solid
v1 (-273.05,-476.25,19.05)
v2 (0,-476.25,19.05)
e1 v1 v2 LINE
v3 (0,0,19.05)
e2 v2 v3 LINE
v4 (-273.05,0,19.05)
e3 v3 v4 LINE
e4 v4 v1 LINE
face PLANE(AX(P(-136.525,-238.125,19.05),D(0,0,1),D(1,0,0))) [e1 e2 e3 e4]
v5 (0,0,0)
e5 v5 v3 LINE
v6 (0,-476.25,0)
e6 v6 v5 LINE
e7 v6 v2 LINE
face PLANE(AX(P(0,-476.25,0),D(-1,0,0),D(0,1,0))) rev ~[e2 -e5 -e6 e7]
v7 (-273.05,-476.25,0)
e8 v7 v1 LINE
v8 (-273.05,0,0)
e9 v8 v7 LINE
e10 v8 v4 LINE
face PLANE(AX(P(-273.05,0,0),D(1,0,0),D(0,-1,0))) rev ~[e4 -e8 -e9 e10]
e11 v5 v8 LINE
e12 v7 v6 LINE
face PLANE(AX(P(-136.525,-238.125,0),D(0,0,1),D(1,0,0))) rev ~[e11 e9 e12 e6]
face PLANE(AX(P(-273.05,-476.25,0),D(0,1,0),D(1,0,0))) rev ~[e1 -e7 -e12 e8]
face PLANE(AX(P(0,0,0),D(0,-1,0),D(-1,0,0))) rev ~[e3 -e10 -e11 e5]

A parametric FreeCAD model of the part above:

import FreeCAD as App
import Part
import Sketcher
Q = App.Units.Quantity


def add_polygon(sketch, points):
    """Adds a closed chain of lines whose ends are joined by coincident constraints."""
    first, n = sketch.GeometryCount, len(points)
    for a, b in zip(points, points[1:] + points[:1]):
        sketch.addGeometry(Part.LineSegment(App.Vector(*a, 0), App.Vector(*b, 0)), False)
    for i in range(n):
        sketch.addConstraint(Sketcher.Constraint("Coincident", first + i, 2, first + (i + 1) % n, 1))

doc = App.newDocument("Part")
body = doc.addObject("PartDesign::Body", "Body")

sketch1 = body.newObject("Sketcher::SketchObject", "Sketch")
sketch1.AttachmentSupport = (doc.getObject("XY_Plane"), [""])
sketch1.MapMode = "FlatFace"
add_polygon(sketch1, [(-273.05, -476.25), (0, -476.25), (0, 0), (-273.05, 0)])
sketch1.addConstraint([
    Sketcher.Constraint("Horizontal", 0),
    Sketcher.Constraint("Vertical", 1),
    Sketcher.Constraint("Horizontal", 2),
    Sketcher.Constraint("Vertical", 3),
    Sketcher.Constraint("Coincident", 1, 2, -1, 1),
    Sketcher.Constraint("DistanceX", 0, 1, 0, 2, Q("10.75 in")),
    Sketcher.Constraint("DistanceY", 1, 1, 1, 2, Q("18.75 in")),
])
pad1 = body.newObject("PartDesign::Pad", "Pad")
pad1.Profile = sketch1
pad1.Length = Q("0.75 in")

doc.recompute()
